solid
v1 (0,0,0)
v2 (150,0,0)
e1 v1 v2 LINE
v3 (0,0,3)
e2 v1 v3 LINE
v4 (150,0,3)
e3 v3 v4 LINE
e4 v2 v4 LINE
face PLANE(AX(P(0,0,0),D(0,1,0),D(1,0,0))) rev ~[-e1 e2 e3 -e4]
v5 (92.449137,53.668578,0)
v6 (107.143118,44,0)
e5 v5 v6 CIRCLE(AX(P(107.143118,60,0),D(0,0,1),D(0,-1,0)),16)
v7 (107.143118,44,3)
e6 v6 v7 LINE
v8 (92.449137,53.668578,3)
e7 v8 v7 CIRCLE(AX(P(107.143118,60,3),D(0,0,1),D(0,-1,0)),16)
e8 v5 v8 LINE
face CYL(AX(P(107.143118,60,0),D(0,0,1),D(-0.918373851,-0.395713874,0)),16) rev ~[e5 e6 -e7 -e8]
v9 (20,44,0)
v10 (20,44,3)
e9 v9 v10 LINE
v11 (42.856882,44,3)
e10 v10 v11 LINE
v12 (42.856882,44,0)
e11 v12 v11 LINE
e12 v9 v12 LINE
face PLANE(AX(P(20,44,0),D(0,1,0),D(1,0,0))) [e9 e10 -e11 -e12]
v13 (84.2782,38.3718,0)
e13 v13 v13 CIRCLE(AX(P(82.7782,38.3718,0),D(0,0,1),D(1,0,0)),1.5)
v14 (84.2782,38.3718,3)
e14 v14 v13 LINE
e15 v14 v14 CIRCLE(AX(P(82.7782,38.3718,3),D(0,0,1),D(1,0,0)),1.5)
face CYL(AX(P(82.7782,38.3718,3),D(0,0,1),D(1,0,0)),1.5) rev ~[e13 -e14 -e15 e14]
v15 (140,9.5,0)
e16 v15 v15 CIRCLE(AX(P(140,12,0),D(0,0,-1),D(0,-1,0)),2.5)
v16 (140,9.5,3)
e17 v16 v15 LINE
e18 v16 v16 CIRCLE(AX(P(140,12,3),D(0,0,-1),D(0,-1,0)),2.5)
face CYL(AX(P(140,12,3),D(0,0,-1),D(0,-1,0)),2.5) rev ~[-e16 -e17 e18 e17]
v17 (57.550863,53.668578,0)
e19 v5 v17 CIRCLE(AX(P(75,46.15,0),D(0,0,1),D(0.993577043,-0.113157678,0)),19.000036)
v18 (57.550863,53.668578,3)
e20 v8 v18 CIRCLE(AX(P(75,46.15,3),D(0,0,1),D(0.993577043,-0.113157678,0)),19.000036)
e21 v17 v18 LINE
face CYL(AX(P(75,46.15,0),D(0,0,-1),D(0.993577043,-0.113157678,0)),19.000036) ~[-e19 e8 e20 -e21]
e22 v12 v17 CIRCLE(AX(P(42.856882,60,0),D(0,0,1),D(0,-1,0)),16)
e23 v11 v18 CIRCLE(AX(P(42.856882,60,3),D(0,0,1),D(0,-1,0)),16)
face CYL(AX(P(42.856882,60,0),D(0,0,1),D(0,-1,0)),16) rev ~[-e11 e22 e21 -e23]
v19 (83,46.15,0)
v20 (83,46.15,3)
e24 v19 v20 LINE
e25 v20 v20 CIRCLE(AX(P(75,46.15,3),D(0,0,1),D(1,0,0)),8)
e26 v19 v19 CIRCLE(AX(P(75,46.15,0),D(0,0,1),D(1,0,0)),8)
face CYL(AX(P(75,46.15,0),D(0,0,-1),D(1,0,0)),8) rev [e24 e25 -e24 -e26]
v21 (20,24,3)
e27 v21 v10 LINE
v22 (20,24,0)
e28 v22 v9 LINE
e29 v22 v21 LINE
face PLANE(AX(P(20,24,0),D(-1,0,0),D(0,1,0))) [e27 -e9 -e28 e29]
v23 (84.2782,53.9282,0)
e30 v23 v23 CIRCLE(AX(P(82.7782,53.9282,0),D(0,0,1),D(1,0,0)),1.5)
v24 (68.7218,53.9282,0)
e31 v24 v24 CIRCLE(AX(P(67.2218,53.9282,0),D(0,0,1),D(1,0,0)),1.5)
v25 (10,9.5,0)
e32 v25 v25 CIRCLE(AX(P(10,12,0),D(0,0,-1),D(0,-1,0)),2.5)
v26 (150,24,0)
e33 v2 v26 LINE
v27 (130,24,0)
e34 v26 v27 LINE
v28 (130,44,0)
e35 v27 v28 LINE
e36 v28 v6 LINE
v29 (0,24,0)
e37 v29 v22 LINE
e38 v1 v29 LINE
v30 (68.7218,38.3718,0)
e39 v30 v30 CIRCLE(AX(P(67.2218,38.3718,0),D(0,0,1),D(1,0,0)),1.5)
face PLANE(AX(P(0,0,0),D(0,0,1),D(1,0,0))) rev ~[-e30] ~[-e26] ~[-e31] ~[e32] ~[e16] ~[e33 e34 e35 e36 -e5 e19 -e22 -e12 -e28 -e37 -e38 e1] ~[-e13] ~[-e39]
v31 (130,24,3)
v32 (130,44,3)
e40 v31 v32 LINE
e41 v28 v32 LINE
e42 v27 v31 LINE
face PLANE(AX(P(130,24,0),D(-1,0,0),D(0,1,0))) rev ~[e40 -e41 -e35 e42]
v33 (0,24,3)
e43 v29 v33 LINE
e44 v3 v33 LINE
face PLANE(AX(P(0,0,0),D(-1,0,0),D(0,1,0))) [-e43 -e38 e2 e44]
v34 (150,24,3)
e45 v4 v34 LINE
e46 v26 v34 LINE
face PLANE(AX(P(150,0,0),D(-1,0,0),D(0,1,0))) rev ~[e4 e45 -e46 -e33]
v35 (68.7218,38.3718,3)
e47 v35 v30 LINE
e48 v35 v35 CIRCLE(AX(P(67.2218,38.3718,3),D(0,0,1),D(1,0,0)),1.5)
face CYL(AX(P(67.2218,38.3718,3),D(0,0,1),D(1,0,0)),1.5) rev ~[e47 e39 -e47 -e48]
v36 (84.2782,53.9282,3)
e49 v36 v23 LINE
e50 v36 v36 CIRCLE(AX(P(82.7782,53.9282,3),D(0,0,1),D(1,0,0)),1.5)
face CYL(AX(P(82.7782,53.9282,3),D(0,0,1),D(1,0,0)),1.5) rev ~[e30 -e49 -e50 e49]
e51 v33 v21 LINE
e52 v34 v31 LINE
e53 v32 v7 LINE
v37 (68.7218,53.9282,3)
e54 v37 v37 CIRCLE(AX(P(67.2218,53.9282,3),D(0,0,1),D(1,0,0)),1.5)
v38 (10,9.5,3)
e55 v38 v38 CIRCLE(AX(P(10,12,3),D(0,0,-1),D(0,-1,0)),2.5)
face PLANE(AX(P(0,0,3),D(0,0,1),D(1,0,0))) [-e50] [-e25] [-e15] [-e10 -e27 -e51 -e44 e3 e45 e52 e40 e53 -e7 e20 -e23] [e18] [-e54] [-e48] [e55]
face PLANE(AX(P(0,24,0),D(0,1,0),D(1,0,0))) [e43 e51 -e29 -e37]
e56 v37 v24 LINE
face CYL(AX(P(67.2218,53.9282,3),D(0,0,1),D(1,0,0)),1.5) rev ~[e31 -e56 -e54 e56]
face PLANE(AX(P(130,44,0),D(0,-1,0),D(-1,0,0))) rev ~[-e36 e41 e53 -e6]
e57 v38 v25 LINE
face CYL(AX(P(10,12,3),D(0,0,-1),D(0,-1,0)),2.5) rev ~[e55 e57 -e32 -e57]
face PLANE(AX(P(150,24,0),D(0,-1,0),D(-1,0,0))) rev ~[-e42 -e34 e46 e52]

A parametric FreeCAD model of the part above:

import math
import FreeCAD as App
import Part
import Sketcher

V = App.Vector


def edges_at(feature, points):
    """Names of the edges that pass closest to the given points."""
    edges = feature.Shape.Edges
    near = lambda p: min(range(len(edges)), key=lambda i: edges[i].distToShape(Part.Vertex(*p))[0])
    return sorted({f"Edge{near(p) + 1}" for p in points})

doc = App.newDocument("Part")
params = doc.addObject("Spreadsheet::Sheet", "Params")
for row, (alias, value) in enumerate([
    ("sketch1_diameter", "16 mm"),
    ("sketch1_radius", "19 mm"),
    ("sketch1_width", "150 mm"),
    ("sketch1_width2", "20 mm"),
    ("sketch1_height", "24 mm"),
    ("pad1_length", "3 mm"),
    ("fillet_radius", "16 mm"),
    ("sketch2_diameter", "3 mm"),
    ("pocket1_length", "3 mm"),
    ("sketch3_diameter", "5 mm"),
    ("hole_diameter", "5 mm"),
], start=1):
    params.set(f"A{row}", alias)
    params.set(f"B{row}", "=" + value)
    params.setAlias(f"B{row}", alias)

body = doc.addObject("PartDesign::Body", "Body")

# Sketch on XY plane
sketch1 = body.newObject("Sketcher::SketchObject", "Sketch")
sketch1.AttachmentSupport = (doc.getObject("XY_Plane"), [""])
sketch1.MapMode = "FlatFace"
sketch1.addGeometry(Part.LineSegment(V(0, 24, 0), V(0, 0, 0)), False)
sketch1.addGeometry(Part.LineSegment(V(0, 0, 0), V(150, 0, 0)), False)
sketch1.addGeometry(Part.LineSegment(V(150, 0, 0), V(150, 24, 0)), False)
sketch1.addGeometry(Part.LineSegment(V(150, 24, 0), V(130, 24, 0)), False)
sketch1.addGeometry(Part.LineSegment(V(130, 24, 0), V(130, 44, 0)), False)
sketch1.addGeometry(Part.LineSegment(V(130, 44, 0), V(94, 44, 0)), False)
sketch1.addGeometry(Part.ArcOfCircle(Part.Circle(V(75, 46, 0), V(0, 0, 1), 19), math.radians(-6), math.radians(186)), False)
sketch1.addGeometry(Part.LineSegment(V(56, 44, 0), V(20, 44, 0)), False)
sketch1.addGeometry(Part.LineSegment(V(20, 44, 0), V(20, 24, 0)), False)
sketch1.addGeometry(Part.LineSegment(V(20, 24, 0), V(0, 24, 0)), False)
sketch1.addGeometry(Part.Circle(V(75, 46, 0), V(0, 0, 1), 8), False)
sketch1.addConstraint(Sketcher.Constraint("Coincident", 0, 2, 1, 1))
sketch1.addConstraint(Sketcher.Constraint("Coincident", 1, 2, 2, 1))
sketch1.addConstraint(Sketcher.Constraint("Coincident", 2, 2, 3, 1))
sketch1.addConstraint(Sketcher.Constraint("Coincident", 3, 2, 4, 1))
sketch1.addConstraint(Sketcher.Constraint("Coincident", 4, 2, 5, 1))
sketch1.addConstraint(Sketcher.Constraint("Coincident", 5, 2, 6, 1))
sketch1.addConstraint(Sketcher.Constraint("Coincident", 6, 2, 7, 1))
sketch1.addConstraint(Sketcher.Constraint("Coincident", 7, 2, 8, 1))
sketch1.addConstraint(Sketcher.Constraint("Coincident", 8, 2, 9, 1))
sketch1.addConstraint(Sketcher.Constraint("Coincident", 9, 2, 0, 1))
sketch1.addConstraint(Sketcher.Constraint("Vertical", 0))
sketch1.addConstraint(Sketcher.Constraint("Horizontal", 1))
sketch1.addConstraint(Sketcher.Constraint("Vertical", 2))
sketch1.addConstraint(Sketcher.Constraint("Horizontal", 3))
sketch1.addConstraint(Sketcher.Constraint("Vertical", 4))
sketch1.addConstraint(Sketcher.Constraint("Horizontal", 5))
sketch1.addConstraint(Sketcher.Constraint("Horizontal", 7))
sketch1.addConstraint(Sketcher.Constraint("Vertical", 8))
sketch1.addConstraint(Sketcher.Constraint("Horizontal", 9))
sketch1.addConstraint(Sketcher.Constraint("Coincident", 0, 2, -1, 1))
sketch1.addConstraint(Sketcher.Constraint("Coincident", 10, 3, 6, 3))
sketch1.addConstraint(Sketcher.Constraint("Horizontal", 5, 2, 6, 2))
sketch1.addConstraint(Sketcher.Constraint("Horizontal", 3, 2, 8, 2))
sketch1.addConstraint(Sketcher.Constraint("Equal", 5, 7))
sketch1.addConstraint(Sketcher.Constraint("Equal", 3, 9))
sketch1.addConstraint(Sketcher.Constraint("Equal", 9, 4))
sketch1.addConstraint(Sketcher.Constraint("Diameter", 10, 16.0))
sketch1.addConstraint(Sketcher.Constraint("Radius", 6, 19.0))
sketch1.addConstraint(Sketcher.Constraint("DistanceX", 1, 1, 1, 2, 150.0))
sketch1.addConstraint(Sketcher.Constraint("DistanceX", 3, 2, 3, 1, 20.0))
sketch1.addConstraint(Sketcher.Constraint("DistanceY", 0, 2, 0, 1, 24.0))
sketch1.addConstraint(Sketcher.Constraint("DistanceY", 2, 2, 6, 3, 22.15))
sketch1.setExpression("Constraints[26]", "Params.sketch1_diameter")
sketch1.setExpression("Constraints[27]", "Params.sketch1_radius")
sketch1.setExpression("Constraints[28]", "Params.sketch1_width")
sketch1.setExpression("Constraints[29]", "Params.sketch1_width2")
sketch1.setExpression("Constraints[30]", "Params.sketch1_height")
pad1 = body.newObject("PartDesign::Pad", "Pad")
pad1.Profile = sketch1
pad1.setExpression("Length", "Params.pad1_length")
doc.recompute()

fillet = body.newObject("PartDesign::Fillet", "Fillet")
fillet.Base = (pad1, edges_at(pad1, [(56.122, 44, 1.5), (93.878, 44, 1.5)]))
fillet.setExpression("Radius", "Params.fillet_radius")

# Sketch on XY plane
sketch2 = body.newObject("Sketcher::SketchObject", "Sketch001")
sketch2.AttachmentSupport = (doc.getObject("XY_Plane"), [""])
sketch2.MapMode = "FlatFace"
sketch2.AttachmentOffset = App.Placement(V(0, 0, 3), App.Rotation())
sketch2.addGeometry(Part.Circle(V(82.8, 53.9, 0), V(0, 0, 1), 1.5), False)
sketch2.addGeometry(Part.Circle(V(67.2, 53.9, 0), V(0, 0, 1), 1.5), False)
sketch2.addGeometry(Part.Circle(V(67.2, 38.4, 0), V(0, 0, 1), 1.5), False)
sketch2.addGeometry(Part.Circle(V(82.8, 38.4, 0), V(0, 0, 1), 1.5), False)
sketch2.addConstraint(Sketcher.Constraint("Equal", 0, 1))
sketch2.addConstraint(Sketcher.Constraint("Equal", 1, 2))
sketch2.addConstraint(Sketcher.Constraint("Equal", 2, 3))
sketch2.addConstraint(Sketcher.Constraint("Horizontal", 0, 3, 1, 3))
sketch2.addConstraint(Sketcher.Constraint("Horizontal", 2, 3, 3, 3))
sketch2.addConstraint(Sketcher.Constraint("Vertical", 1, 3, 2, 3))
sketch2.addConstraint(Sketcher.Constraint("Vertical", 0, 3, 3, 3))
sketch2.addConstraint(Sketcher.Constraint("Diameter", 0, 3.0))
sketch2.addConstraint(Sketcher.Constraint("DistanceX", -1, 1, 0, 3, 82.7782))
sketch2.addConstraint(Sketcher.Constraint("DistanceY", -1, 1, 0, 3, 53.9282))
sketch2.addConstraint(Sketcher.Constraint("DistanceX", -1, 1, 1, 3, 67.2218))
sketch2.addConstraint(Sketcher.Constraint("DistanceY", -1, 1, 2, 3, 38.3718))
sketch2.setExpression("Constraints[7]", "Params.sketch2_diameter")
pocket1 = body.newObject("PartDesign::Pocket", "Pocket")
pocket1.Profile = sketch2
pocket1.setExpression("Length", "Params.pocket1_length")

# Sketch on XY plane
sketch3 = body.newObject("Sketcher::SketchObject", "Sketch002")
sketch3.AttachmentSupport = (doc.getObject("XY_Plane"), [""])
sketch3.MapMode = "FlatFace"
sketch3.AttachmentOffset = App.Placement(V(0, 0, 3), App.Rotation())
sketch3.addGeometry(Part.Circle(V(10, 12, 0), V(0, 0, 1), 2.5), False)
sketch3.addGeometry(Part.Circle(V(140, 12, 0), V(0, 0, 1), 2.5), False)
sketch3.addConstraint(Sketcher.Constraint("Equal", 0, 1))
sketch3.addConstraint(Sketcher.Constraint("Horizontal", 0, 3, 1, 3))
sketch3.addConstraint(Sketcher.Constraint("Diameter", 0, 5.0))
sketch3.addConstraint(Sketcher.Constraint("DistanceX", -1, 1, 0, 3, 10.0))
sketch3.addConstraint(Sketcher.Constraint("DistanceY", -1, 1, 0, 3, 12.0))
sketch3.addConstraint(Sketcher.Constraint("DistanceX", -1, 1, 1, 3, 140.0))
sketch3.setExpression("Constraints[2]", "Params.sketch3_diameter")
doc.recompute()
hole = body.newObject("PartDesign::Hole", "Hole")
hole.Profile = sketch3
hole.ThreadType = "None"
hole.setExpression("Diameter", "Params.hole_diameter")
hole.DepthType = "ThroughAll"

doc.recompute()
